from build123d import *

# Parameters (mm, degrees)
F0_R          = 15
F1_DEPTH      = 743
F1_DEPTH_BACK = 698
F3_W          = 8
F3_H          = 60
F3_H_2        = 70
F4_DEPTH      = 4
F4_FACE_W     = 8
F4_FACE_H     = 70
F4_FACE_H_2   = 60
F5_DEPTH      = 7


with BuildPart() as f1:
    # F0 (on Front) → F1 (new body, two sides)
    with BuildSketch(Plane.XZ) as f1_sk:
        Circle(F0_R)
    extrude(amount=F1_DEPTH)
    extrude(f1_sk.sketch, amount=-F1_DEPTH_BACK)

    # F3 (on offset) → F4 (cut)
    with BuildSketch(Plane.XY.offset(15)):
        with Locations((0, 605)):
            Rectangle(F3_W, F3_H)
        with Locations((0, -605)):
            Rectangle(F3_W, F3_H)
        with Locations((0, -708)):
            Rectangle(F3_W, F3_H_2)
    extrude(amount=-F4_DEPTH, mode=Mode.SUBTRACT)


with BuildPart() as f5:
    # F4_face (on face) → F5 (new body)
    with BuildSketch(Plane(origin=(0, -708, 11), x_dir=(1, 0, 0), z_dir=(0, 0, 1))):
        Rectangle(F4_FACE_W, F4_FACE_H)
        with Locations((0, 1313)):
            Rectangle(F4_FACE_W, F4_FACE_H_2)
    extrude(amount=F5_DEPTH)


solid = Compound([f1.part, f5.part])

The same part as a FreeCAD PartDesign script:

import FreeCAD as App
import Part
import Sketcher

V = App.Vector

doc = App.newDocument("Part")
body = doc.addObject("PartDesign::Body", "Body")

sketch1 = body.newObject("Sketcher::SketchObject", "Sketch")
sketch1.AttachmentSupport = (doc.getObject("XZ_Plane"), [""])
sketch1.MapMode = "FlatFace"
sketch1.addGeometry(Part.Circle(V(0, 0, 0), V(0, 0, 1), 15), False)
sketch1.addConstraint(Sketcher.Constraint("Coincident", 0, 3, -1, 1))
sketch1.addConstraint(Sketcher.Constraint("Diameter", 0, 30.0))
pad1 = body.newObject("PartDesign::Pad", "Pad")
pad1.Profile = sketch1
pad1.Type = "TwoLengths"
pad1.Length = 743
pad1.Length2 = 698

sketch2 = body.newObject("Sketcher::SketchObject", "Sketch001")
sketch2.AttachmentSupport = (doc.getObject("XY_Plane"), [""])
sketch2.MapMode = "FlatFace"
sketch2.AttachmentOffset = App.Placement(V(0, 0, 15), App.Rotation())
sketch2.addGeometry(Part.LineSegment(V(-4, 635, 0), V(-4, 575, 0)), False)
sketch2.addGeometry(Part.LineSegment(V(-4, 575, 0), V(4, 575, 0)), False)
sketch2.addGeometry(Part.LineSegment(V(4, 575, 0), V(4, 635, 0)), False)
sketch2.addGeometry(Part.LineSegment(V(4, 635, 0), V(-4, 635, 0)), False)
sketch2.addGeometry(Part.LineSegment(V(-4, -575, 0), V(-4, -635, 0)), False)
sketch2.addGeometry(Part.LineSegment(V(-4, -635, 0), V(4, -635, 0)), False)
sketch2.addGeometry(Part.LineSegment(V(4, -635, 0), V(4, -575, 0)), False)
sketch2.addGeometry(Part.LineSegment(V(4, -575, 0), V(-4, -575, 0)), False)
sketch2.addGeometry(Part.LineSegment(V(-4, -673, 0), V(-4, -743, 0)), False)
sketch2.addGeometry(Part.LineSegment(V(-4, -743, 0), V(4, -743, 0)), False)
sketch2.addGeometry(Part.LineSegment(V(4, -743, 0), V(4, -673, 0)), False)
sketch2.addGeometry(Part.LineSegment(V(4, -673, 0), V(-4, -673, 0)), False)
sketch2.addConstraint(Sketcher.Constraint("Coincident", 0, 2, 1, 1))
sketch2.addConstraint(Sketcher.Constraint("Coincident", 1, 2, 2, 1))
sketch2.addConstraint(Sketcher.Constraint("Coincident", 2, 2, 3, 1))
sketch2.addConstraint(Sketcher.Constraint("Coincident", 3, 2, 0, 1))
sketch2.addConstraint(Sketcher.Constraint("Coincident", 4, 2, 5, 1))
sketch2.addConstraint(Sketcher.Constraint("Coincident", 5, 2, 6, 1))
sketch2.addConstraint(Sketcher.Constraint("Coincident", 6, 2, 7, 1))
sketch2.addConstraint(Sketcher.Constraint("Coincident", 7, 2, 4, 1))
sketch2.addConstraint(Sketcher.Constraint("Coincident", 8, 2, 9, 1))
sketch2.addConstraint(Sketcher.Constraint("Coincident", 9, 2, 10, 1))
sketch2.addConstraint(Sketcher.Constraint("Coincident", 10, 2, 11, 1))
sketch2.addConstraint(Sketcher.Constraint("Coincident", 11, 2, 8, 1))
sketch2.addConstraint(Sketcher.Constraint("Vertical", 0))
sketch2.addConstraint(Sketcher.Constraint("Horizontal", 1))
sketch2.addConstraint(Sketcher.Constraint("Vertical", 2))
sketch2.addConstraint(Sketcher.Constraint("Horizontal", 3))
sketch2.addConstraint(Sketcher.Constraint("Vertical", 4))
sketch2.addConstraint(Sketcher.Constraint("Horizontal", 5))
sketch2.addConstraint(Sketcher.Constraint("Vertical", 6))
sketch2.addConstraint(Sketcher.Constraint("Horizontal", 7))
sketch2.addConstraint(Sketcher.Constraint("Vertical", 8))
sketch2.addConstraint(Sketcher.Constraint("Horizontal", 9))
sketch2.addConstraint(Sketcher.Constraint("Vertical", 10))
sketch2.addConstraint(Sketcher.Constraint("Horizontal", 11))
sketch2.addConstraint(Sketcher.Constraint("Symmetric", 2, 2, 4, 2, -1, 1))
sketch2.addConstraint(Sketcher.Constraint("Symmetric", 0, 2, 6, 2, -1, 1))
sketch2.addConstraint(Sketcher.Constraint("Vertical", 3, 2, 4, 2))
sketch2.addConstraint(Sketcher.Constraint("Vertical", 7, 2, 8, 2))
sketch2.addConstraint(Sketcher.Constraint("Vertical", 6, 2, 9, 2))
sketch2.addConstraint(Sketcher.Constraint("DistanceX", 1, 1, 1, 2, 8.0))
sketch2.addConstraint(Sketcher.Constraint("DistanceY", 0, 2, 0, 1, 60.0))
sketch2.addConstraint(Sketcher.Constraint("DistanceY", 8, 2, 8, 1, 70.0))
sketch2.addConstraint(Sketcher.Constraint("DistanceY", -1, 1, 0, 2, 575.0))
sketch2.addConstraint(Sketcher.Constraint("DistanceY", 8, 2, -1, 1, 743.0))
pocket1 = body.newObject("PartDesign::Pocket", "Pocket")
pocket1.Profile = sketch2
pocket1.Length = 4
body2 = doc.addObject("PartDesign::Body", "Body001")
body2.AllowCompound = True

sketch3 = body2.newObject("Sketcher::SketchObject", "Sketch002")
sketch3.AttachmentSupport = (doc.getObject("XY_Plane001"), [""])
sketch3.MapMode = "FlatFace"
sketch3.AttachmentOffset = App.Placement(V(0, 0, 11), App.Rotation())
sketch3.addGeometry(Part.LineSegment(V(-4, -673, 0), V(-4, -743, 0)), False)
sketch3.addGeometry(Part.LineSegment(V(-4, -743, 0), V(4, -743, 0)), False)
sketch3.addGeometry(Part.LineSegment(V(4, -743, 0), V(4, -673, 0)), False)
sketch3.addGeometry(Part.LineSegment(V(4, -673, 0), V(-4, -673, 0)), False)
sketch3.addGeometry(Part.LineSegment(V(-4, 635, 0), V(-4, 575, 0)), False)
sketch3.addGeometry(Part.LineSegment(V(-4, 575, 0), V(4, 575, 0)), False)
sketch3.addGeometry(Part.LineSegment(V(4, 575, 0), V(4, 635, 0)), False)
sketch3.addGeometry(Part.LineSegment(V(4, 635, 0), V(-4, 635, 0)), False)
sketch3.addConstraint(Sketcher.Constraint("Coincident", 0, 2, 1, 1))
sketch3.addConstraint(Sketcher.Constraint("Coincident", 1, 2, 2, 1))
sketch3.addConstraint(Sketcher.Constraint("Coincident", 2, 2, 3, 1))
sketch3.addConstraint(Sketcher.Constraint("Coincident", 3, 2, 0, 1))
sketch3.addConstraint(Sketcher.Constraint("Coincident", 4, 2, 5, 1))
sketch3.addConstraint(Sketcher.Constraint("Coincident", 5, 2, 6, 1))
sketch3.addConstraint(Sketcher.Constraint("Coincident", 6, 2, 7, 1))
sketch3.addConstraint(Sketcher.Constraint("Coincident", 7, 2, 4, 1))
sketch3.addConstraint(Sketcher.Constraint("Vertical", 0))
sketch3.addConstraint(Sketcher.Constraint("Horizontal", 1))
sketch3.addConstraint(Sketcher.Constraint("Vertical", 2))
sketch3.addConstraint(Sketcher.Constraint("Horizontal", 3))
sketch3.addConstraint(Sketcher.Constraint("Vertical", 4))
sketch3.addConstraint(Sketcher.Constraint("Horizontal", 5))
sketch3.addConstraint(Sketcher.Constraint("Vertical", 6))
sketch3.addConstraint(Sketcher.Constraint("Horizontal", 7))
sketch3.addConstraint(Sketcher.Constraint("Vertical", 3, 2, 4, 2))
sketch3.addConstraint(Sketcher.Constraint("Vertical", 2, 2, 5, 2))
sketch3.addConstraint(Sketcher.Constraint("DistanceX", 1, 1, 1, 2, 8.0))
sketch3.addConstraint(Sketcher.Constraint("DistanceY", 0, 2, 0, 1, 70.0))
sketch3.addConstraint(Sketcher.Constraint("DistanceY", 4, 2, 4, 1, 60.0))
sketch3.addConstraint(Sketcher.Constraint("DistanceX", 0, 2, -1, 1, 4.0))
sketch3.addConstraint(Sketcher.Constraint("DistanceY", 0, 2, -1, 1, 743.0))
sketch3.addConstraint(Sketcher.Constraint("DistanceY", -1, 1, 4, 2, 575.0))
pad2 = body2.newObject("PartDesign::Pad", "Pad001")
pad2.Profile = sketch3
pad2.Length = 7

doc.recompute()
